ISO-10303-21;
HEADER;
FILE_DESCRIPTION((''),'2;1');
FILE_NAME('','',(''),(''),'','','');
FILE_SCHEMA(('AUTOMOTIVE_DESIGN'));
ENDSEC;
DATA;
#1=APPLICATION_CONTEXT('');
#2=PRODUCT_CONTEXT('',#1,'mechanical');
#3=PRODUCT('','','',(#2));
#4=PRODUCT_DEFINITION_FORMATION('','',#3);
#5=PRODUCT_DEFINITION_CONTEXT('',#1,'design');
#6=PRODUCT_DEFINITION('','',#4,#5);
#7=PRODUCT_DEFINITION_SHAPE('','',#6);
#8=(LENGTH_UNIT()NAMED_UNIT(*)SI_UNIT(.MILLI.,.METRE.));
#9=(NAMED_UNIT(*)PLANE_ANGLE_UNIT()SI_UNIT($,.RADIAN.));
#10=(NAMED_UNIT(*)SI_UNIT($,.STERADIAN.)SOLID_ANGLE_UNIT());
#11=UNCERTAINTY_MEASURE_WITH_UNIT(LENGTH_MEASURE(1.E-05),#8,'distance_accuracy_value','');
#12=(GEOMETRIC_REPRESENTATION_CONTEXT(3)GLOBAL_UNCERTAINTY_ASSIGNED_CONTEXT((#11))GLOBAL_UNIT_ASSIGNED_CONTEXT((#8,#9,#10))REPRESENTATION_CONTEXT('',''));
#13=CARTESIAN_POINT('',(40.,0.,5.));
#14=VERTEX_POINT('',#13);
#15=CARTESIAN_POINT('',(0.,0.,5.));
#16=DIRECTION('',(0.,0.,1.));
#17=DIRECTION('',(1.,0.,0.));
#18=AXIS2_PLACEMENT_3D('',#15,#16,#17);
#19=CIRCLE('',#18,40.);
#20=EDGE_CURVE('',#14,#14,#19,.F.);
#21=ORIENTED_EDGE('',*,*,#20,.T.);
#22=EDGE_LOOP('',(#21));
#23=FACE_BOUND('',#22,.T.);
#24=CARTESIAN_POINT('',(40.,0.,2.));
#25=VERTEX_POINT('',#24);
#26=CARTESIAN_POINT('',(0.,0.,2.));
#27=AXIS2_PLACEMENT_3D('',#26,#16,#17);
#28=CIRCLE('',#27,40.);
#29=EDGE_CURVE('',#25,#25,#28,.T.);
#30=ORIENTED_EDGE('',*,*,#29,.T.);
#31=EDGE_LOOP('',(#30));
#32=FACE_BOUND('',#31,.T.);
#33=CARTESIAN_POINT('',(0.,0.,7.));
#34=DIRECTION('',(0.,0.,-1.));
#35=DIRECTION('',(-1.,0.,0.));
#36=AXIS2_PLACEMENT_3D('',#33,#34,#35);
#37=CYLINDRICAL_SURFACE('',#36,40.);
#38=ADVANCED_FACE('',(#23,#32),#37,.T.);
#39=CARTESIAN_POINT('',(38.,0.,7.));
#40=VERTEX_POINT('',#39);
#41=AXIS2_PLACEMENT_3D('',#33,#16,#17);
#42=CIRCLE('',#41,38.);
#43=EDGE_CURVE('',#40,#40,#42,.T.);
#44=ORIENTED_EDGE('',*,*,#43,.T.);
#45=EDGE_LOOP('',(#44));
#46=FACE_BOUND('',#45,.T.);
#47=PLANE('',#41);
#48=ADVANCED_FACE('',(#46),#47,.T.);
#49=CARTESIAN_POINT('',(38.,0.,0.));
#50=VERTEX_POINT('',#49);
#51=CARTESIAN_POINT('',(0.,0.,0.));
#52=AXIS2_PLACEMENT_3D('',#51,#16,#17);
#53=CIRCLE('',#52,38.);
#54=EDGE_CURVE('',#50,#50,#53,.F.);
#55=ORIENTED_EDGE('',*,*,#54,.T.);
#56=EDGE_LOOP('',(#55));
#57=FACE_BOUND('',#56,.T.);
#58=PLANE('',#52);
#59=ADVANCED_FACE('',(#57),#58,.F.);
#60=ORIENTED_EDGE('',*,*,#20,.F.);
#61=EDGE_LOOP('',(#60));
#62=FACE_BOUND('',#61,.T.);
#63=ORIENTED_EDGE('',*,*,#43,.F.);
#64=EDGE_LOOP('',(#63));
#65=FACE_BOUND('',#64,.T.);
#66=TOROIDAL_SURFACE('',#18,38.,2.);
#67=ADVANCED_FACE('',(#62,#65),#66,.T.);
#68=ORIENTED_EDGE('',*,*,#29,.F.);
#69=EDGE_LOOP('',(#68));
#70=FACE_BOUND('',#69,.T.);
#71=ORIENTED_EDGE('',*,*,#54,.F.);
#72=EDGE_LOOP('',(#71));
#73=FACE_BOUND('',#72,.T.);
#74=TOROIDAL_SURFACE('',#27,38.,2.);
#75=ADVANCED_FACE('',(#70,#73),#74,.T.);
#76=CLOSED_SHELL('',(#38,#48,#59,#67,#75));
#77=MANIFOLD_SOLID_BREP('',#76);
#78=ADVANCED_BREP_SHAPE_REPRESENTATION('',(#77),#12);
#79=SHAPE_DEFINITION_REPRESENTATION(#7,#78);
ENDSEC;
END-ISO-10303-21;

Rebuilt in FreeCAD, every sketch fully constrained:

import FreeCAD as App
import Part
import Sketcher
from FreeCAD import Vector
Q = App.Units.Quantity


def edges_at(feature, points):
    """Names of the edges that pass closest to the given points."""
    edges = feature.Shape.Edges
    near = lambda p: min(range(len(edges)), key=lambda i: edges[i].distToShape(Part.Vertex(*p))[0])
    return sorted({f"Edge{near(p) + 1}" for p in points})

doc = App.newDocument("Part")
body = doc.addObject("PartDesign::Body", "Body")

sketch1 = body.newObject("Sketcher::SketchObject", "Sketch")
sketch1.AttachmentSupport = (doc.getObject("XY_Plane"), [""])
sketch1.MapMode = "FlatFace"
sketch1.addGeometry(Part.Circle(Vector(0, 0, 0), Vector(0, 0, 1), 40), False)
sketch1.addConstraint(Sketcher.Constraint("Coincident", 0, 3, -1, 1))
sketch1.addConstraint(Sketcher.Constraint("Diameter", 0, Q("80 mm")))
pad1 = body.newObject("PartDesign::Pad", "Pad")
pad1.Profile = sketch1
pad1.Length = 7
doc.recompute()

fillet = body.newObject("PartDesign::Fillet", "Fillet")
fillet.Base = (pad1, edges_at(pad1, [(-40, 0, 0)]))
fillet.Radius = 2
doc.recompute()

fillet2 = body.newObject("PartDesign::Fillet", "Fillet001")
fillet2.Base = (fillet, edges_at(fillet, [(-40, 0, 7)]))
fillet2.Radius = 2

doc.recompute()
